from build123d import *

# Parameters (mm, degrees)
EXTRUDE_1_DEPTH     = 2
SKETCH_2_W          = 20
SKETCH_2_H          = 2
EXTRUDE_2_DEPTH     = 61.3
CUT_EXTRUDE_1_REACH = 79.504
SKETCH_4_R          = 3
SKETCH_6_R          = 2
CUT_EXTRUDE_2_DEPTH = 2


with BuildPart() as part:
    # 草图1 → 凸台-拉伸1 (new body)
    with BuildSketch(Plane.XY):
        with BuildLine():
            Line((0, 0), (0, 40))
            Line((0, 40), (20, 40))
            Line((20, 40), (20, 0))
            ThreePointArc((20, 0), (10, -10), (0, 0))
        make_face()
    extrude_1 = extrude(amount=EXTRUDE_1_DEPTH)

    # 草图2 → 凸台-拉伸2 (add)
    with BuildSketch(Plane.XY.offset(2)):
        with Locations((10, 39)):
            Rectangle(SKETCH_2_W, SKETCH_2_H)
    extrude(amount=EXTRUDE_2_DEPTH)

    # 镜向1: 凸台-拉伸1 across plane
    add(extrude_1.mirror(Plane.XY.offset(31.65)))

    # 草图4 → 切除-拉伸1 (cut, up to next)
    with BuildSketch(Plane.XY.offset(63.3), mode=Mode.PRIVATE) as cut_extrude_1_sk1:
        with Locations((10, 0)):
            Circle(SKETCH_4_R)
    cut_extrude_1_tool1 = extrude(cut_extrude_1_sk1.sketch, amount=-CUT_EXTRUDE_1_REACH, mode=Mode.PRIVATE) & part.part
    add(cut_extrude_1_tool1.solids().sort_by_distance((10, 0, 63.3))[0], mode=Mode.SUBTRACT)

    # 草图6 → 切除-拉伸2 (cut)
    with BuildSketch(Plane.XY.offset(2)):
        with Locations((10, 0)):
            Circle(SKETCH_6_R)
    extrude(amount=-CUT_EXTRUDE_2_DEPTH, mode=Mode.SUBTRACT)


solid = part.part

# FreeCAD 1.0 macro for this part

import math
import FreeCAD as App
import Part
import Sketcher

V = App.Vector


def add_polygon(sketch, points):
    """Adds a closed chain of lines whose ends are joined by coincident constraints."""
    first, n = sketch.GeometryCount, len(points)
    for a, b in zip(points, points[1:] + points[:1]):
        sketch.addGeometry(Part.LineSegment(App.Vector(*a, 0), App.Vector(*b, 0)), False)
    for i in range(n):
        sketch.addConstraint(Sketcher.Constraint("Coincident", first + i, 2, first + (i + 1) % n, 1))

doc = App.newDocument("Part")
body = doc.addObject("PartDesign::Body", "Body")

sketch1 = body.newObject("Sketcher::SketchObject", "Sketch")
sketch1.AttachmentSupport = (doc.getObject("XY_Plane"), [""])
sketch1.MapMode = "FlatFace"
sketch1.addGeometry(Part.LineSegment(V(0, 40, 0), V(0, 0, 0)), False)
sketch1.addGeometry(Part.ArcOfCircle(Part.Circle(V(10, 0, 0), V(0, 0, 1), 10), math.radians(180), math.radians(360)), False)
sketch1.addGeometry(Part.LineSegment(V(20, 0, 0), V(20, 40, 0)), False)
sketch1.addGeometry(Part.LineSegment(V(20, 40, 0), V(0, 40, 0)), False)
sketch1.addConstraint(Sketcher.Constraint("Tangent", 0, 2, 1, 1))
sketch1.addConstraint(Sketcher.Constraint("Tangent", 1, 2, 2, 1))
sketch1.addConstraint(Sketcher.Constraint("Coincident", 2, 2, 3, 1))
sketch1.addConstraint(Sketcher.Constraint("Coincident", 3, 2, 0, 1))
sketch1.addConstraint(Sketcher.Constraint("Vertical", 0))
sketch1.addConstraint(Sketcher.Constraint("Vertical", 2))
sketch1.addConstraint(Sketcher.Constraint("Horizontal", 3))
sketch1.addConstraint(Sketcher.Constraint("Coincident", 0, 2, -1, 1))
sketch1.addConstraint(Sketcher.Constraint("Radius", 1, 10.0))
sketch1.addConstraint(Sketcher.Constraint("DistanceY", 0, 2, 0, 1, 40.0))
pad1 = body.newObject("PartDesign::Pad", "Pad")
pad1.Profile = sketch1
pad1.Length = 2

sketch2 = body.newObject("Sketcher::SketchObject", "Sketch001")
sketch2.AttachmentSupport = (doc.getObject("XY_Plane"), [""])
sketch2.MapMode = "FlatFace"
sketch2.AttachmentOffset = App.Placement(V(0, 0, 2), App.Rotation())
add_polygon(sketch2, [(0, 40), (0, 38), (20, 38), (20, 40)])
sketch2.addConstraint(Sketcher.Constraint("Vertical", 0))
sketch2.addConstraint(Sketcher.Constraint("Horizontal", 1))
sketch2.addConstraint(Sketcher.Constraint("Vertical", 2))
sketch2.addConstraint(Sketcher.Constraint("Horizontal", 3))
sketch2.addConstraint(Sketcher.Constraint("PointOnObject", 0, 2, -2))
sketch2.addConstraint(Sketcher.Constraint("DistanceX", 1, 1, 1, 2, 20.0))
sketch2.addConstraint(Sketcher.Constraint("DistanceY", 0, 2, 0, 1, 2.0))
sketch2.addConstraint(Sketcher.Constraint("DistanceY", -1, 1, 0, 2, 38.0))
pad2 = body.newObject("PartDesign::Pad", "Pad001")
pad2.Profile = sketch2
pad2.Length = 61.3
doc.recompute()

datumplane = body.newObject("PartDesign::Plane", "DatumPlane")
datumplane.AttachmentSupport = (doc.getObject("XY_Plane"), [""])
datumplane.MapMode = "FlatFace"
datumplane.AttachmentOffset = App.Placement(V(0, 0, 31.65), App.Rotation())
mirrored = body.newObject("PartDesign::Mirrored", "Mirrored")
mirrored.Originals = [pad1]
mirrored.MirrorPlane = (datumplane, [""])
body.Tip = mirrored

sketch3 = body.newObject("Sketcher::SketchObject", "Sketch002")
sketch3.AttachmentSupport = (doc.getObject("XY_Plane"), [""])
sketch3.MapMode = "FlatFace"
sketch3.AttachmentOffset = App.Placement(V(0, 0, 63.3), App.Rotation())
sketch3.addGeometry(Part.Circle(V(10, 0, 0), V(0, 0, 1), 3), False)
sketch3.addConstraint(Sketcher.Constraint("PointOnObject", 0, 3, -1))
sketch3.addConstraint(Sketcher.Constraint("Diameter", 0, 6.0))
sketch3.addConstraint(Sketcher.Constraint("DistanceX", -1, 1, 0, 3, 10.0))
pocket1 = body.newObject("PartDesign::Pocket", "Pocket")
pocket1.Profile = sketch3
pocket1.Type = "UpToFirst"

sketch4 = body.newObject("Sketcher::SketchObject", "Sketch003")
sketch4.AttachmentSupport = (doc.getObject("XY_Plane"), [""])
sketch4.MapMode = "FlatFace"
sketch4.AttachmentOffset = App.Placement(V(0, 0, 2), App.Rotation())
sketch4.addGeometry(Part.Circle(V(10, 0, 0), V(0, 0, 1), 2), False)
sketch4.addConstraint(Sketcher.Constraint("PointOnObject", 0, 3, -1))
sketch4.addConstraint(Sketcher.Constraint("Diameter", 0, 4.0))
sketch4.addConstraint(Sketcher.Constraint("DistanceX", -1, 1, 0, 3, 10.0))
pocket2 = body.newObject("PartDesign::Pocket", "Pocket001")
pocket2.Profile = sketch4
pocket2.Length = 2

doc.recompute()
